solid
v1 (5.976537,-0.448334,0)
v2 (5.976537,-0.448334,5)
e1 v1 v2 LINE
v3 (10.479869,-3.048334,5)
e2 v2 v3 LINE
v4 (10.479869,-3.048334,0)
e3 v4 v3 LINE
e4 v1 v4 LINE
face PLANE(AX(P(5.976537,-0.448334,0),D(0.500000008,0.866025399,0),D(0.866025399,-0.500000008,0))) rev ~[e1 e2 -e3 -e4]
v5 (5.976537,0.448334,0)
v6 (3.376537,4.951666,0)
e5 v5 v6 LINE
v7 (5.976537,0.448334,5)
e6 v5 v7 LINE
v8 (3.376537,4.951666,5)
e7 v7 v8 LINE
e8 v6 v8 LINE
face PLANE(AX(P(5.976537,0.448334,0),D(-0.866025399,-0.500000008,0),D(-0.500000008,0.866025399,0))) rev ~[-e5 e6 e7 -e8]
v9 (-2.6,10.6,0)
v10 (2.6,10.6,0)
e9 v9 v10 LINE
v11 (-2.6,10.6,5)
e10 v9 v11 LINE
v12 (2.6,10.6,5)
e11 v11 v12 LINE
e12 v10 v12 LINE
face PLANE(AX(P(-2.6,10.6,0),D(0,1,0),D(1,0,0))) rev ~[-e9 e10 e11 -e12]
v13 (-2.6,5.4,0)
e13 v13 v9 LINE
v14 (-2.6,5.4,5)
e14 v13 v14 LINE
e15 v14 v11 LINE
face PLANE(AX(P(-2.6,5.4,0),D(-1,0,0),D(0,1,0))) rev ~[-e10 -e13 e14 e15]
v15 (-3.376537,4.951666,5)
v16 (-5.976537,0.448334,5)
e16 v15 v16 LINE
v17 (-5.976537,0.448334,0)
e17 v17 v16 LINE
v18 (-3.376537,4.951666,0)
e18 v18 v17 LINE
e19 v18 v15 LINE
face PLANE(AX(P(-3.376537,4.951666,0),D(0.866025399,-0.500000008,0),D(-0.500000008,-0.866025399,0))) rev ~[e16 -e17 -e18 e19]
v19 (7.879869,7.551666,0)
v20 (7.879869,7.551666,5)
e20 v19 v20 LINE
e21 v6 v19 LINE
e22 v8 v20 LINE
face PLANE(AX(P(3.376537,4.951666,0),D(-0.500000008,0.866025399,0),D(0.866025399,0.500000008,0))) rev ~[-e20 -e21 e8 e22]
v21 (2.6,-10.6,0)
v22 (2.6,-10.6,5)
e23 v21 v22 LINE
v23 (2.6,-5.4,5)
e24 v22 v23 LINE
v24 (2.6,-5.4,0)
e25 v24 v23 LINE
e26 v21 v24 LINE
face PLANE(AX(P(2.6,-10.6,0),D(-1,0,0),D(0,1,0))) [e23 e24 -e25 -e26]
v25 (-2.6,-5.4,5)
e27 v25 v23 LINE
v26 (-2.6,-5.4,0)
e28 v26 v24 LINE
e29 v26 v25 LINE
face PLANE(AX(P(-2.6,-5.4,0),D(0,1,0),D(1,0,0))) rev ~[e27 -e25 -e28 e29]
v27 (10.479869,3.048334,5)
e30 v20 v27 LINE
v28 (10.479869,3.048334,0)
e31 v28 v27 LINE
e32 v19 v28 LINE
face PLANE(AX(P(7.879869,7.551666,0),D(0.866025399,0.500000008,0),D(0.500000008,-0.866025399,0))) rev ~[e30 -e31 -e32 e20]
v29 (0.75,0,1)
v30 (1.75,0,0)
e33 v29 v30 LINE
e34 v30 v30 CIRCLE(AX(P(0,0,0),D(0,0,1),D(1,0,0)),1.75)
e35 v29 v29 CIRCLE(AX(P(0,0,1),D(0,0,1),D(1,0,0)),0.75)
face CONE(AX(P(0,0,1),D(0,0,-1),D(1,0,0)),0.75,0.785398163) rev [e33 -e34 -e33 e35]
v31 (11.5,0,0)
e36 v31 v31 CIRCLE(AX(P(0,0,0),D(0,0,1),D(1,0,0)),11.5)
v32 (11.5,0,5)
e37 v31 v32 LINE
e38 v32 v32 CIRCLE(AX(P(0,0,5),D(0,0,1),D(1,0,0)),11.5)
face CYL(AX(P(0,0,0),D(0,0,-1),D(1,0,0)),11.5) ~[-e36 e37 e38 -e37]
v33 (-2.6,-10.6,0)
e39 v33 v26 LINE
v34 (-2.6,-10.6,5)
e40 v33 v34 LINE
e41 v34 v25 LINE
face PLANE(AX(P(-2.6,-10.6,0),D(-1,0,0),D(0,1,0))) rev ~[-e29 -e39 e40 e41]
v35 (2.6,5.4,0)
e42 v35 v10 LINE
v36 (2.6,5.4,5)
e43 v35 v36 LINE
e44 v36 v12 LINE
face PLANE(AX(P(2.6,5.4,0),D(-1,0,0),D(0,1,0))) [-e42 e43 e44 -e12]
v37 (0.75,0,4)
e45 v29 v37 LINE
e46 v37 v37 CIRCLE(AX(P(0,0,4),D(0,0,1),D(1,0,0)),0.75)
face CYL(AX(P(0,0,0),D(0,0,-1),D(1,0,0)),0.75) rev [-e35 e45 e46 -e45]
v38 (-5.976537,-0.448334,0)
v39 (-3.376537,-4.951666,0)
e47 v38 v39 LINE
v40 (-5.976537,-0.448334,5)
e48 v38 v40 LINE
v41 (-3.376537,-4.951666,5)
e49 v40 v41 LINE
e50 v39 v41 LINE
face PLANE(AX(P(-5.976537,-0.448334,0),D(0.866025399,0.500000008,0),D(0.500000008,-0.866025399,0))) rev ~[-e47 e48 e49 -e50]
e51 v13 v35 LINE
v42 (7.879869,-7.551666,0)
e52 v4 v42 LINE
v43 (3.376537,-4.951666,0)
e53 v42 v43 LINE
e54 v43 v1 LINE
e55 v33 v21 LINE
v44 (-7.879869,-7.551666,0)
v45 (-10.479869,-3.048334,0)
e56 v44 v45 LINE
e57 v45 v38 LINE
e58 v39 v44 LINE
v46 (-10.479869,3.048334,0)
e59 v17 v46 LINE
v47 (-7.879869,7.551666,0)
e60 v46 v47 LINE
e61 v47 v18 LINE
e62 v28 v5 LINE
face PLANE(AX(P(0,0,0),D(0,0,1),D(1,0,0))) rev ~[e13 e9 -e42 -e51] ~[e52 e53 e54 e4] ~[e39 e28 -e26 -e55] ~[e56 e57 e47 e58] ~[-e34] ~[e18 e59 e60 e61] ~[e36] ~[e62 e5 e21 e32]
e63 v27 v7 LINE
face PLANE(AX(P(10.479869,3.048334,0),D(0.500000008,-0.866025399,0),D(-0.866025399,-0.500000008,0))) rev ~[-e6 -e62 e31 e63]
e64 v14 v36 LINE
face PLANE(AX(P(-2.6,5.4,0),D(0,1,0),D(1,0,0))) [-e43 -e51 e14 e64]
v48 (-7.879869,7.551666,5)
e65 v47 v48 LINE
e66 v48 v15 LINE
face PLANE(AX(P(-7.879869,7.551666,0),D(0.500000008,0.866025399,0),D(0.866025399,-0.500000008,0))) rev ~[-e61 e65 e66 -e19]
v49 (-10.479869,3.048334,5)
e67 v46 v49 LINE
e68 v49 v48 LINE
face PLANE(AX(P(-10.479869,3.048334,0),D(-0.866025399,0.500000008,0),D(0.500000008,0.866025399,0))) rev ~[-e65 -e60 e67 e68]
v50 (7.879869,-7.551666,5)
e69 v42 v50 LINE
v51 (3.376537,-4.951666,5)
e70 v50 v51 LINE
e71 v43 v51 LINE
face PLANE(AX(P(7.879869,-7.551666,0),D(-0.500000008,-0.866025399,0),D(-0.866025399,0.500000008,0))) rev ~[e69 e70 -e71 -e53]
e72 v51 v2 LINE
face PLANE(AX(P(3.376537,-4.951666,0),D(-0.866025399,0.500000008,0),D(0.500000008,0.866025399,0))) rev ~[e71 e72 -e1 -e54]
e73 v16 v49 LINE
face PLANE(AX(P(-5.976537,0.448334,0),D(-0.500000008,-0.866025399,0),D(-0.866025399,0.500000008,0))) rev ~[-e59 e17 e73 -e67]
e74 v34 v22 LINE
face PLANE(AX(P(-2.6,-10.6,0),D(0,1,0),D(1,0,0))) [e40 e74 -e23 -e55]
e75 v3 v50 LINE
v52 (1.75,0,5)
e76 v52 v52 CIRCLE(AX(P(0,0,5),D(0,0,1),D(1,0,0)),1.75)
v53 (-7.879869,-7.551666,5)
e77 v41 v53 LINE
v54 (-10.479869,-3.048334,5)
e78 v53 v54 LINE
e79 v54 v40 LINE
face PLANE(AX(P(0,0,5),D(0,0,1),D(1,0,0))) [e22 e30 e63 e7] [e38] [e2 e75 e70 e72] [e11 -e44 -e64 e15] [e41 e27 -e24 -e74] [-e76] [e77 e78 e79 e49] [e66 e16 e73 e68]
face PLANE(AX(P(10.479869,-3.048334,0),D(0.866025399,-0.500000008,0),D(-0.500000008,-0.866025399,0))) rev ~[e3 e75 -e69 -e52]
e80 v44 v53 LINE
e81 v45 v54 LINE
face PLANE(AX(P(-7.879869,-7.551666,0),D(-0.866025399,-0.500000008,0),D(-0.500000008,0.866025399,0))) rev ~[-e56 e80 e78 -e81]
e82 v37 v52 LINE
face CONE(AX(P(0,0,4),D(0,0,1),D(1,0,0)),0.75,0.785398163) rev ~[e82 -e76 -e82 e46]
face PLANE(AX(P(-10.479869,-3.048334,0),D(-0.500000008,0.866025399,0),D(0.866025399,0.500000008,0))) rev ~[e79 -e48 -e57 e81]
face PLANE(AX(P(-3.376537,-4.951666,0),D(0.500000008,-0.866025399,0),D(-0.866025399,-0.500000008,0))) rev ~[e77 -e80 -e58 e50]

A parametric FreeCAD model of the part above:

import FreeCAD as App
import Part
import Sketcher

V = App.Vector
Q = App.Units.Quantity


def edges_at(feature, points):
    """Names of the edges that pass closest to the given points."""
    edges = feature.Shape.Edges
    near = lambda p: min(range(len(edges)), key=lambda i: edges[i].distToShape(Part.Vertex(*p))[0])
    return sorted({f"Edge{near(p) + 1}" for p in points})


def add_polygon(sketch, points):
    """Adds a closed chain of lines whose ends are joined by coincident constraints."""
    first, n = sketch.GeometryCount, len(points)
    for a, b in zip(points, points[1:] + points[:1]):
        sketch.addGeometry(Part.LineSegment(App.Vector(*a, 0), App.Vector(*b, 0)), False)
    for i in range(n):
        sketch.addConstraint(Sketcher.Constraint("Coincident", first + i, 2, first + (i + 1) % n, 1))

doc = App.newDocument("Part")
body = doc.addObject("PartDesign::Body", "Body")

# Sketch on XY plane
sketch1 = doc.addObject("Sketcher::SketchObject", "Sketch")
body.addObject(sketch1)
sketch1.AttachmentSupport = (doc.XY_Plane, [""])
sketch1.MapMode = "FlatFace"
sketch1.addGeometry(Part.Circle(V(0, 0, 0), V(0, 0, 1), 11.5), False)  # 0
add_polygon(sketch1, [(-3.4, -5), (-7.9, -7.6), (-10.5, -3), (-6, -0.4)])  # lines 1-4
add_polygon(sketch1, [(2.6, -10.6), (-2.6, -10.6), (-2.6, -5.4), (2.6, -5.4)])  # lines 5-8
sketch1.addGeometry(Part.Circle(V(0, 0, 0), V(0, 0, 1), 0.8), False)  # 9
add_polygon(sketch1, [(6, -0.4), (10.5, -3), (7.9, -7.6), (3.4, -5)])  # lines 10-13
add_polygon(sketch1, [(-6, 0.4), (-10.5, 3), (-7.9, 7.6), (-3.4, 5)])  # lines 14-17
add_polygon(sketch1, [(3.4, 5), (7.9, 7.6), (10.5, 3), (6, 0.4)])  # lines 18-21
add_polygon(sketch1, [(2.6, 5.4), (-2.6, 5.4), (-2.6, 10.6), (2.6, 10.6)])  # lines 22-25
sketch1.addConstraint([
    Sketcher.Constraint("Horizontal", 5),
    Sketcher.Constraint("Vertical", 6),
    Sketcher.Constraint("Horizontal", 7),
    Sketcher.Constraint("Vertical", 8),
    Sketcher.Constraint("Horizontal", 22),
    Sketcher.Constraint("Vertical", 23),
    Sketcher.Constraint("Horizontal", 24),
    Sketcher.Constraint("Vertical", 25),
    Sketcher.Constraint("Coincident", 0, 3, -1, 1),
    Sketcher.Constraint("Coincident", 9, 3, -1, 1),
    Sketcher.Constraint("Symmetric", 10, 2, 14, 2, -1, 1),
    Sketcher.Constraint("Symmetric", 11, 2, 15, 2, -1, 1),
    Sketcher.Constraint("Symmetric", 12, 2, 16, 2, -1, 1),
    Sketcher.Constraint("Symmetric", 13, 2, 17, 2, -1, 1),
    Sketcher.Constraint("Symmetric", 1, 2, 18, 2, -1, 1),
    Sketcher.Constraint("Symmetric", 2, 2, 19, 2, -1, 1),
    Sketcher.Constraint("Symmetric", 3, 2, 20, 2, -1, 1),
    Sketcher.Constraint("Symmetric", 4, 2, 21, 2, -1, 1),
    Sketcher.Constraint("Symmetric", 7, 2, 22, 2, -1, 1),
    Sketcher.Constraint("Symmetric", 5, 2, 24, 2, -1, 1),
    Sketcher.Constraint("Symmetric", 2, 2, 10, 2, -2),
    Sketcher.Constraint("Symmetric", 1, 2, 11, 2, -2),
    Sketcher.Constraint("Symmetric", 4, 2, 12, 2, -2),
    Sketcher.Constraint("Symmetric", 3, 2, 13, 2, -2),
    Sketcher.Constraint("Perpendicular", 1, 2),
    Sketcher.Constraint("Perpendicular", 2, 3),
    Sketcher.Constraint("Perpendicular", 3, 4),
    Sketcher.Constraint("Vertical", 6, 2, 22, 2),
    Sketcher.Constraint("Equal", 24, 6),
    Sketcher.Constraint("Equal", 1, 2),
    Sketcher.Constraint("Diameter", 0, Q("23 mm")),
    Sketcher.Constraint("Diameter", 9, Q("1.5 mm")),
    Sketcher.Constraint("Angle", 1, Q("-149.999999 deg")),
    Sketcher.Constraint("DistanceX", 5, 2, 5, 1, Q("5.2 mm")),
    Sketcher.Constraint("DistanceY", 4, 2, 14, 2, Q("8 mm")),
    Sketcher.Constraint("Distance", 1, Q("5.2 mm")),
    Sketcher.Constraint("DistanceY", 5, 2, -1, 1, Q("10.6 mm")),
    Sketcher.Constraint("DistanceX", 1, 2, -1, 1, Q("7.879869 mm")),
])
pad1 = doc.addObject("PartDesign::Pad", "Pad")
body.addObject(pad1)
pad1.Profile = sketch1
pad1.Length = 5
doc.recompute()

chamfer = doc.addObject("PartDesign::Chamfer", "Chamfer")
body.addObject(chamfer)
chamfer.Base = (pad1, edges_at(pad1, [(-0.75, 0, 5), (-0.75, 0, 0)]))
chamfer.Size = 1

doc.recompute()
